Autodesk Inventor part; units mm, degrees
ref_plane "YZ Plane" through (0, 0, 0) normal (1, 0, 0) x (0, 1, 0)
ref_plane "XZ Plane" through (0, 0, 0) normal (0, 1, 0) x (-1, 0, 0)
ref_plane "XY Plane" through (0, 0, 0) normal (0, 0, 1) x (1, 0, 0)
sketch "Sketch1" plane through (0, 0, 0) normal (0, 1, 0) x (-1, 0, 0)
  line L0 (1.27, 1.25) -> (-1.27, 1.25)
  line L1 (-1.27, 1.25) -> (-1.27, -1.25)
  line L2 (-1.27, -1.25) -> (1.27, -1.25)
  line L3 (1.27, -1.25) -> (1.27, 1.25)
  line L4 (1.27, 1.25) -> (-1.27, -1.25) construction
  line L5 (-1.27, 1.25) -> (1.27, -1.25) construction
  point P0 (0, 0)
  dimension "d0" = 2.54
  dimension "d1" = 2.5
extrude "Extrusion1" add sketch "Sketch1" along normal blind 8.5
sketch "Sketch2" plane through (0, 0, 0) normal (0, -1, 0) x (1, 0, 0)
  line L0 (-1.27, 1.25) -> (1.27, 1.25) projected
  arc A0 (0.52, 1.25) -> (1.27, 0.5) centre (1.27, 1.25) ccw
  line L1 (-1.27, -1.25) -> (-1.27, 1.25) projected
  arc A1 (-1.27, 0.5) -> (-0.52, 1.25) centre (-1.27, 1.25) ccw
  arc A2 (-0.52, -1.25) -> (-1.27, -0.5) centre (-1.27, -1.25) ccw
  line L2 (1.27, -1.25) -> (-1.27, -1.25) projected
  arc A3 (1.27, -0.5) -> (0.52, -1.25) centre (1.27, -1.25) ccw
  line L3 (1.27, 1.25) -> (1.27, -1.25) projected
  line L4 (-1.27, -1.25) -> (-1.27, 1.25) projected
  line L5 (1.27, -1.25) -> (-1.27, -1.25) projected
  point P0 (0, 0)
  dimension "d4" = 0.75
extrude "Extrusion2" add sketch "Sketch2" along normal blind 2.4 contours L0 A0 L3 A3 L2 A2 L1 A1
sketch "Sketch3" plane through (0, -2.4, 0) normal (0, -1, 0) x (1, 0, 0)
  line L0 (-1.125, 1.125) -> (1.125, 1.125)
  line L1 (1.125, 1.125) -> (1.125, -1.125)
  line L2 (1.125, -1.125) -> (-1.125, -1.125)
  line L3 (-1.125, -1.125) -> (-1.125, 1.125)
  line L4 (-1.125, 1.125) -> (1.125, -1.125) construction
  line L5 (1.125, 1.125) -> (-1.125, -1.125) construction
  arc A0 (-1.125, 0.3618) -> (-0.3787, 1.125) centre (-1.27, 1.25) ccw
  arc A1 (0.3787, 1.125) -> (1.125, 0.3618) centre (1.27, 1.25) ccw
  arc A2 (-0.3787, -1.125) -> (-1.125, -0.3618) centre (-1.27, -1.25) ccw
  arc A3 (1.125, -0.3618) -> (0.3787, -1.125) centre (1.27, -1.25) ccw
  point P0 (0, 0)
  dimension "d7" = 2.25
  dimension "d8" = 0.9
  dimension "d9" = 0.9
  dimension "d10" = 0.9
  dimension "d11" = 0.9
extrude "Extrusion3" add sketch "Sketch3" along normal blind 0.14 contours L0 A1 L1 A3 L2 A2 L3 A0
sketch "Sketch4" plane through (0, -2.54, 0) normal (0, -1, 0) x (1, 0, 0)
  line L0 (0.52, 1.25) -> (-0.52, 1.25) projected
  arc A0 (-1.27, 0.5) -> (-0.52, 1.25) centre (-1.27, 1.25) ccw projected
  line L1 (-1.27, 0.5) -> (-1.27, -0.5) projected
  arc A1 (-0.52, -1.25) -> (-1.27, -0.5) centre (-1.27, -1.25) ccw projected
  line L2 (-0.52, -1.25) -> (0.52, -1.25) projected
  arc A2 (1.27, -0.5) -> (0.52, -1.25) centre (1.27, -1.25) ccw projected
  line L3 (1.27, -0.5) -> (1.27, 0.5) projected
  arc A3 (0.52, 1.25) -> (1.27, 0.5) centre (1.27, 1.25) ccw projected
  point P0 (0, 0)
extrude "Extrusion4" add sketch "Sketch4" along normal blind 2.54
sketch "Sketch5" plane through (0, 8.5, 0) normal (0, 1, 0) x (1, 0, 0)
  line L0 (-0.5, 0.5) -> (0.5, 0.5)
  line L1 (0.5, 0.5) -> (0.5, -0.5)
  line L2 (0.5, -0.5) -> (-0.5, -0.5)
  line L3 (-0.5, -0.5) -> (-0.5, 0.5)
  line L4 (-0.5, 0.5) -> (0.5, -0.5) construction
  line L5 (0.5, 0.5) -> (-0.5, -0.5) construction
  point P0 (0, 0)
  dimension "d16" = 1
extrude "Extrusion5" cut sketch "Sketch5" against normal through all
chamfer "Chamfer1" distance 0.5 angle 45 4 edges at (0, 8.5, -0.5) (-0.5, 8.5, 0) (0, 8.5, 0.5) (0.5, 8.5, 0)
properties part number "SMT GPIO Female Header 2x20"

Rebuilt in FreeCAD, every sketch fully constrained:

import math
import FreeCAD as App
import Part
import Sketcher

V = App.Vector


def edges_at(feature, points):
    """Names of the edges that pass closest to the given points."""
    edges = feature.Shape.Edges
    near = lambda p: min(range(len(edges)), key=lambda i: edges[i].distToShape(Part.Vertex(*p))[0])
    return sorted({f"Edge{near(p) + 1}" for p in points})

doc = App.newDocument("Part")
body = doc.addObject("PartDesign::Body", "Body")

sketch1 = body.newObject("Sketcher::SketchObject", "Sketch")
sketch1.AttachmentSupport = (doc.getObject("XZ_Plane"), [""])
sketch1.MapMode = "FlatFace"
sketch1.addGeometry(Part.LineSegment(V(-1.3, -1.2, 0), V(-1.3, 1.2, 0)), False)
sketch1.addGeometry(Part.LineSegment(V(-1.3, 1.2, 0), V(1.3, 1.2, 0)), False)
sketch1.addGeometry(Part.LineSegment(V(1.3, 1.2, 0), V(1.3, -1.2, 0)), False)
sketch1.addGeometry(Part.LineSegment(V(1.3, -1.2, 0), V(-1.3, -1.2, 0)), False)
sketch1.addConstraint(Sketcher.Constraint("Coincident", 0, 2, 1, 1))
sketch1.addConstraint(Sketcher.Constraint("Coincident", 1, 2, 2, 1))
sketch1.addConstraint(Sketcher.Constraint("Coincident", 2, 2, 3, 1))
sketch1.addConstraint(Sketcher.Constraint("Coincident", 3, 2, 0, 1))
sketch1.addConstraint(Sketcher.Constraint("Vertical", 0))
sketch1.addConstraint(Sketcher.Constraint("Horizontal", 1))
sketch1.addConstraint(Sketcher.Constraint("Vertical", 2))
sketch1.addConstraint(Sketcher.Constraint("Horizontal", 3))
sketch1.addConstraint(Sketcher.Constraint("Symmetric", 0, 2, 2, 2, -1, 1))
sketch1.addConstraint(Sketcher.Constraint("DistanceY", 0, 1, 0, 2, 2.5))
sketch1.addConstraint(Sketcher.Constraint("DistanceX", 1, 1, 1, 2, 2.54))
pad1 = body.newObject("PartDesign::Pad", "Pad")
pad1.Profile = sketch1
pad1.Length = 8.5
pad1.Reversed = True

sketch2 = body.newObject("Sketcher::SketchObject", "Sketch001")
sketch2.AttachmentSupport = (doc.getObject("XZ_Plane"), [""])
sketch2.MapMode = "FlatFace"
sketch2.addGeometry(Part.LineSegment(V(0.5, 1.2, 0), V(-0.5, 1.2, 0)), False)
sketch2.addGeometry(Part.ArcOfCircle(Part.Circle(V(-1.3, 1.2, 0), V(0, 0, 1), 0.8), math.radians(-90), math.radians(0)), False)
sketch2.addGeometry(Part.LineSegment(V(-1.3, 0.5, 0), V(-1.3, -0.5, 0)), False)
sketch2.addGeometry(Part.ArcOfCircle(Part.Circle(V(-1.3, -1.2, 0), V(0, 0, 1), 0.8), math.radians(0), math.radians(90)), False)
sketch2.addGeometry(Part.LineSegment(V(-0.5, -1.2, 0), V(0.5, -1.2, 0)), False)
sketch2.addGeometry(Part.ArcOfCircle(Part.Circle(V(1.3, -1.2, 0), V(0, 0, 1), 0.8), math.radians(90), math.radians(180)), False)
sketch2.addGeometry(Part.LineSegment(V(1.3, -0.5, 0), V(1.3, 0.5, 0)), False)
sketch2.addGeometry(Part.ArcOfCircle(Part.Circle(V(1.3, 1.2, 0), V(0, 0, 1), 0.8), math.radians(180), math.radians(270)), False)
sketch2.addConstraint(Sketcher.Constraint("Coincident", 0, 2, 1, 2))
sketch2.addConstraint(Sketcher.Constraint("Coincident", 1, 1, 2, 1))
sketch2.addConstraint(Sketcher.Constraint("Coincident", 2, 2, 3, 2))
sketch2.addConstraint(Sketcher.Constraint("Coincident", 3, 1, 4, 1))
sketch2.addConstraint(Sketcher.Constraint("Coincident", 4, 2, 5, 2))
sketch2.addConstraint(Sketcher.Constraint("Coincident", 5, 1, 6, 1))
sketch2.addConstraint(Sketcher.Constraint("Coincident", 6, 2, 7, 2))
sketch2.addConstraint(Sketcher.Constraint("Coincident", 7, 1, 0, 1))
sketch2.addConstraint(Sketcher.Constraint("Horizontal", 0))
sketch2.addConstraint(Sketcher.Constraint("Vertical", 2))
sketch2.addConstraint(Sketcher.Constraint("Horizontal", 4))
sketch2.addConstraint(Sketcher.Constraint("Vertical", 6))
sketch2.addConstraint(Sketcher.Constraint("Equal", 1, 3))
sketch2.addConstraint(Sketcher.Constraint("Equal", 3, 5))
sketch2.addConstraint(Sketcher.Constraint("Equal", 5, 7))
sketch2.addConstraint(Sketcher.Constraint("Symmetric", 1, 3, 5, 3, -1, 1))
sketch2.addConstraint(Sketcher.Constraint("Symmetric", 3, 3, 7, 3, -1, 1))
sketch2.addConstraint(Sketcher.Constraint("Symmetric", 3, 3, 5, 3, -2))
sketch2.addConstraint(Sketcher.Constraint("Horizontal", 7, 3, 0, 2))
sketch2.addConstraint(Sketcher.Constraint("Horizontal", 5, 3, 3, 1))
sketch2.addConstraint(Sketcher.Constraint("Vertical", 3, 3, 1, 1))
sketch2.addConstraint(Sketcher.Constraint("Vertical", 7, 3, 5, 1))
sketch2.addConstraint(Sketcher.Constraint("Radius", 1, 0.75))
sketch2.addConstraint(Sketcher.Constraint("DistanceY", 2, 2, 2, 1, 1.0))
sketch2.addConstraint(Sketcher.Constraint("DistanceX", 0, 2, 0, 1, 1.04))
pad2 = body.newObject("PartDesign::Pad", "Pad001")
pad2.Profile = sketch2
pad2.Length = 2.4

sketch3 = body.newObject("Sketcher::SketchObject", "Sketch002")
sketch3.AttachmentSupport = (doc.getObject("XZ_Plane"), [""])
sketch3.MapMode = "FlatFace"
sketch3.AttachmentOffset = App.Placement(V(0, 0, 2.4), App.Rotation())
sketch3.addGeometry(Part.LineSegment(V(0.4, 1.1, 0), V(-0.4, 1.1, 0)), False)
sketch3.addGeometry(Part.ArcOfCircle(Part.Circle(V(-1.3, 1.2, 0), V(0, 0, 1), 0.9), math.radians(-81), math.radians(-8)), False)
sketch3.addGeometry(Part.LineSegment(V(-1.1, 0.4, 0), V(-1.1, -0.4, 0)), False)
sketch3.addGeometry(Part.ArcOfCircle(Part.Circle(V(-1.3, -1.2, 0), V(0, 0, 1), 0.9), math.radians(8), math.radians(81)), False)
sketch3.addGeometry(Part.LineSegment(V(-0.4, -1.1, 0), V(0.4, -1.1, 0)), False)
sketch3.addGeometry(Part.ArcOfCircle(Part.Circle(V(1.3, -1.2, 0), V(0, 0, 1), 0.9), math.radians(99), math.radians(172)), False)
sketch3.addGeometry(Part.LineSegment(V(1.1, -0.4, 0), V(1.1, 0.4, 0)), False)
sketch3.addGeometry(Part.ArcOfCircle(Part.Circle(V(1.3, 1.2, 0), V(0, 0, 1), 0.9), math.radians(-172), math.radians(-99)), False)
sketch3.addConstraint(Sketcher.Constraint("Coincident", 0, 2, 1, 2))
sketch3.addConstraint(Sketcher.Constraint("Coincident", 1, 1, 2, 1))
sketch3.addConstraint(Sketcher.Constraint("Coincident", 2, 2, 3, 2))
sketch3.addConstraint(Sketcher.Constraint("Coincident", 3, 1, 4, 1))
sketch3.addConstraint(Sketcher.Constraint("Coincident", 4, 2, 5, 2))
sketch3.addConstraint(Sketcher.Constraint("Coincident", 5, 1, 6, 1))
sketch3.addConstraint(Sketcher.Constraint("Coincident", 6, 2, 7, 2))
sketch3.addConstraint(Sketcher.Constraint("Coincident", 7, 1, 0, 1))
sketch3.addConstraint(Sketcher.Constraint("Horizontal", 0))
sketch3.addConstraint(Sketcher.Constraint("Vertical", 2))
sketch3.addConstraint(Sketcher.Constraint("Horizontal", 4))
sketch3.addConstraint(Sketcher.Constraint("Vertical", 6))
sketch3.addConstraint(Sketcher.Constraint("Equal", 1, 3))
sketch3.addConstraint(Sketcher.Constraint("Equal", 3, 5))
sketch3.addConstraint(Sketcher.Constraint("Equal", 5, 7))
sketch3.addConstraint(Sketcher.Constraint("Symmetric", 1, 3, 5, 3, -1, 1))
sketch3.addConstraint(Sketcher.Constraint("Symmetric", 3, 3, 7, 3, -1, 1))
sketch3.addConstraint(Sketcher.Constraint("Symmetric", 3, 3, 5, 3, -2))
sketch3.addConstraint(Sketcher.Constraint("Horizontal", 2, 2, 5, 1))
sketch3.addConstraint(Sketcher.Constraint("Vertical", 0, 2, 3, 1))
sketch3.addConstraint(Sketcher.Constraint("Radius", 1, 0.9))
sketch3.addConstraint(Sketcher.Constraint("DistanceY", 3, 1, 0, 2, 2.25))
sketch3.addConstraint(Sketcher.Constraint("DistanceY", 3, 3, 1, 3, 2.5))
sketch3.addConstraint(Sketcher.Constraint("DistanceX", 1, 3, -1, 1, 1.27))
sketch3.addConstraint(Sketcher.Constraint("DistanceY", 2, 2, 2, 1, 0.7236))
pad3 = body.newObject("PartDesign::Pad", "Pad002")
pad3.Profile = sketch3
pad3.Length = 0.14

sketch4 = body.newObject("Sketcher::SketchObject", "Sketch003")
sketch4.AttachmentSupport = (doc.getObject("XZ_Plane"), [""])
sketch4.MapMode = "FlatFace"
sketch4.AttachmentOffset = App.Placement(V(0, 0, 2.54), App.Rotation())
sketch4.addGeometry(Part.ArcOfCircle(Part.Circle(V(1.3, 1.2, 0), V(0, 0, 1), 0.8), math.radians(180), math.radians(270)), False)
sketch4.addGeometry(Part.LineSegment(V(0.5, 1.2, 0), V(-0.5, 1.2, 0)), False)
sketch4.addGeometry(Part.ArcOfCircle(Part.Circle(V(-1.3, 1.2, 0), V(0, 0, 1), 0.8), math.radians(-90), math.radians(0)), False)
sketch4.addGeometry(Part.LineSegment(V(-1.3, 0.5, 0), V(-1.3, -0.5, 0)), False)
sketch4.addGeometry(Part.ArcOfCircle(Part.Circle(V(-1.3, -1.2, 0), V(0, 0, 1), 0.8), math.radians(0), math.radians(90)), False)
sketch4.addGeometry(Part.LineSegment(V(-0.5, -1.2, 0), V(0.5, -1.2, 0)), False)
sketch4.addGeometry(Part.ArcOfCircle(Part.Circle(V(1.3, -1.2, 0), V(0, 0, 1), 0.8), math.radians(90), math.radians(180)), False)
sketch4.addGeometry(Part.LineSegment(V(1.3, -0.5, 0), V(1.3, 0.5, 0)), False)
sketch4.addConstraint(Sketcher.Constraint("Coincident", 0, 1, 1, 1))
sketch4.addConstraint(Sketcher.Constraint("Coincident", 1, 2, 2, 2))
sketch4.addConstraint(Sketcher.Constraint("Coincident", 2, 1, 3, 1))
sketch4.addConstraint(Sketcher.Constraint("Coincident", 3, 2, 4, 2))
sketch4.addConstraint(Sketcher.Constraint("Coincident", 4, 1, 5, 1))
sketch4.addConstraint(Sketcher.Constraint("Coincident", 5, 2, 6, 2))
sketch4.addConstraint(Sketcher.Constraint("Coincident", 6, 1, 7, 1))
sketch4.addConstraint(Sketcher.Constraint("Coincident", 7, 2, 0, 2))
sketch4.addConstraint(Sketcher.Constraint("Horizontal", 1))
sketch4.addConstraint(Sketcher.Constraint("Vertical", 3))
sketch4.addConstraint(Sketcher.Constraint("Horizontal", 5))
sketch4.addConstraint(Sketcher.Constraint("Vertical", 7))
sketch4.addConstraint(Sketcher.Constraint("Equal", 0, 2))
sketch4.addConstraint(Sketcher.Constraint("Equal", 2, 4))
sketch4.addConstraint(Sketcher.Constraint("Equal", 4, 6))
sketch4.addConstraint(Sketcher.Constraint("Symmetric", 0, 3, 4, 3, -1, 1))
sketch4.addConstraint(Sketcher.Constraint("Symmetric", 2, 3, 6, 3, -1, 1))
sketch4.addConstraint(Sketcher.Constraint("Symmetric", 0, 3, 2, 3, -2))
sketch4.addConstraint(Sketcher.Constraint("Horizontal", 2, 3, 0, 1))
sketch4.addConstraint(Sketcher.Constraint("Horizontal", 6, 3, 4, 1))
sketch4.addConstraint(Sketcher.Constraint("Vertical", 4, 3, 2, 1))
sketch4.addConstraint(Sketcher.Constraint("Vertical", 0, 3, 6, 1))
sketch4.addConstraint(Sketcher.Constraint("DistanceY", 3, 2, 3, 1, 1.0))
sketch4.addConstraint(Sketcher.Constraint("Radius", 0, 0.75))
sketch4.addConstraint(Sketcher.Constraint("DistanceX", 1, 2, 1, 1, 1.04))
pad4 = body.newObject("PartDesign::Pad", "Pad003")
pad4.Profile = sketch4
pad4.Length = 2.54

sketch5 = body.newObject("Sketcher::SketchObject", "Sketch004")
sketch5.AttachmentSupport = (doc.getObject("XZ_Plane"), [""])
sketch5.MapMode = "FlatFace"
sketch5.AttachmentOffset = App.Placement(V(0, 0, -8.5), App.Rotation())
sketch5.addGeometry(Part.LineSegment(V(0.5, -0.5, 0), V(-0.5, -0.5, 0)), False)
sketch5.addGeometry(Part.LineSegment(V(-0.5, -0.5, 0), V(-0.5, 0.5, 0)), False)
sketch5.addGeometry(Part.LineSegment(V(-0.5, 0.5, 0), V(0.5, 0.5, 0)), False)
sketch5.addGeometry(Part.LineSegment(V(0.5, 0.5, 0), V(0.5, -0.5, 0)), False)
sketch5.addConstraint(Sketcher.Constraint("Coincident", 0, 2, 1, 1))
sketch5.addConstraint(Sketcher.Constraint("Coincident", 1, 2, 2, 1))
sketch5.addConstraint(Sketcher.Constraint("Coincident", 2, 2, 3, 1))
sketch5.addConstraint(Sketcher.Constraint("Coincident", 3, 2, 0, 1))
sketch5.addConstraint(Sketcher.Constraint("Horizontal", 0))
sketch5.addConstraint(Sketcher.Constraint("Vertical", 1))
sketch5.addConstraint(Sketcher.Constraint("Horizontal", 2))
sketch5.addConstraint(Sketcher.Constraint("Vertical", 3))
sketch5.addConstraint(Sketcher.Constraint("Symmetric", 0, 2, 2, 2, -1, 1))
sketch5.addConstraint(Sketcher.Constraint("Equal", 2, 1))
sketch5.addConstraint(Sketcher.Constraint("DistanceX", 0, 2, 0, 1, 1.0))
pocket1 = body.newObject("PartDesign::Pocket", "Pocket")
pocket1.Profile = sketch5
pocket1.Type = "ThroughAll"
pocket1.Reversed = True
doc.recompute()

chamfer = body.newObject("PartDesign::Chamfer", "Chamfer")
chamfer.Base = (pocket1, edges_at(pocket1, [
    (0, 8.5, -0.5),
    (-0.5, 8.5, 0),
    (0, 8.5, 0.5),
    (0.5, 8.5, 0),
]))
chamfer.Size = 0.5

doc.recompute()
